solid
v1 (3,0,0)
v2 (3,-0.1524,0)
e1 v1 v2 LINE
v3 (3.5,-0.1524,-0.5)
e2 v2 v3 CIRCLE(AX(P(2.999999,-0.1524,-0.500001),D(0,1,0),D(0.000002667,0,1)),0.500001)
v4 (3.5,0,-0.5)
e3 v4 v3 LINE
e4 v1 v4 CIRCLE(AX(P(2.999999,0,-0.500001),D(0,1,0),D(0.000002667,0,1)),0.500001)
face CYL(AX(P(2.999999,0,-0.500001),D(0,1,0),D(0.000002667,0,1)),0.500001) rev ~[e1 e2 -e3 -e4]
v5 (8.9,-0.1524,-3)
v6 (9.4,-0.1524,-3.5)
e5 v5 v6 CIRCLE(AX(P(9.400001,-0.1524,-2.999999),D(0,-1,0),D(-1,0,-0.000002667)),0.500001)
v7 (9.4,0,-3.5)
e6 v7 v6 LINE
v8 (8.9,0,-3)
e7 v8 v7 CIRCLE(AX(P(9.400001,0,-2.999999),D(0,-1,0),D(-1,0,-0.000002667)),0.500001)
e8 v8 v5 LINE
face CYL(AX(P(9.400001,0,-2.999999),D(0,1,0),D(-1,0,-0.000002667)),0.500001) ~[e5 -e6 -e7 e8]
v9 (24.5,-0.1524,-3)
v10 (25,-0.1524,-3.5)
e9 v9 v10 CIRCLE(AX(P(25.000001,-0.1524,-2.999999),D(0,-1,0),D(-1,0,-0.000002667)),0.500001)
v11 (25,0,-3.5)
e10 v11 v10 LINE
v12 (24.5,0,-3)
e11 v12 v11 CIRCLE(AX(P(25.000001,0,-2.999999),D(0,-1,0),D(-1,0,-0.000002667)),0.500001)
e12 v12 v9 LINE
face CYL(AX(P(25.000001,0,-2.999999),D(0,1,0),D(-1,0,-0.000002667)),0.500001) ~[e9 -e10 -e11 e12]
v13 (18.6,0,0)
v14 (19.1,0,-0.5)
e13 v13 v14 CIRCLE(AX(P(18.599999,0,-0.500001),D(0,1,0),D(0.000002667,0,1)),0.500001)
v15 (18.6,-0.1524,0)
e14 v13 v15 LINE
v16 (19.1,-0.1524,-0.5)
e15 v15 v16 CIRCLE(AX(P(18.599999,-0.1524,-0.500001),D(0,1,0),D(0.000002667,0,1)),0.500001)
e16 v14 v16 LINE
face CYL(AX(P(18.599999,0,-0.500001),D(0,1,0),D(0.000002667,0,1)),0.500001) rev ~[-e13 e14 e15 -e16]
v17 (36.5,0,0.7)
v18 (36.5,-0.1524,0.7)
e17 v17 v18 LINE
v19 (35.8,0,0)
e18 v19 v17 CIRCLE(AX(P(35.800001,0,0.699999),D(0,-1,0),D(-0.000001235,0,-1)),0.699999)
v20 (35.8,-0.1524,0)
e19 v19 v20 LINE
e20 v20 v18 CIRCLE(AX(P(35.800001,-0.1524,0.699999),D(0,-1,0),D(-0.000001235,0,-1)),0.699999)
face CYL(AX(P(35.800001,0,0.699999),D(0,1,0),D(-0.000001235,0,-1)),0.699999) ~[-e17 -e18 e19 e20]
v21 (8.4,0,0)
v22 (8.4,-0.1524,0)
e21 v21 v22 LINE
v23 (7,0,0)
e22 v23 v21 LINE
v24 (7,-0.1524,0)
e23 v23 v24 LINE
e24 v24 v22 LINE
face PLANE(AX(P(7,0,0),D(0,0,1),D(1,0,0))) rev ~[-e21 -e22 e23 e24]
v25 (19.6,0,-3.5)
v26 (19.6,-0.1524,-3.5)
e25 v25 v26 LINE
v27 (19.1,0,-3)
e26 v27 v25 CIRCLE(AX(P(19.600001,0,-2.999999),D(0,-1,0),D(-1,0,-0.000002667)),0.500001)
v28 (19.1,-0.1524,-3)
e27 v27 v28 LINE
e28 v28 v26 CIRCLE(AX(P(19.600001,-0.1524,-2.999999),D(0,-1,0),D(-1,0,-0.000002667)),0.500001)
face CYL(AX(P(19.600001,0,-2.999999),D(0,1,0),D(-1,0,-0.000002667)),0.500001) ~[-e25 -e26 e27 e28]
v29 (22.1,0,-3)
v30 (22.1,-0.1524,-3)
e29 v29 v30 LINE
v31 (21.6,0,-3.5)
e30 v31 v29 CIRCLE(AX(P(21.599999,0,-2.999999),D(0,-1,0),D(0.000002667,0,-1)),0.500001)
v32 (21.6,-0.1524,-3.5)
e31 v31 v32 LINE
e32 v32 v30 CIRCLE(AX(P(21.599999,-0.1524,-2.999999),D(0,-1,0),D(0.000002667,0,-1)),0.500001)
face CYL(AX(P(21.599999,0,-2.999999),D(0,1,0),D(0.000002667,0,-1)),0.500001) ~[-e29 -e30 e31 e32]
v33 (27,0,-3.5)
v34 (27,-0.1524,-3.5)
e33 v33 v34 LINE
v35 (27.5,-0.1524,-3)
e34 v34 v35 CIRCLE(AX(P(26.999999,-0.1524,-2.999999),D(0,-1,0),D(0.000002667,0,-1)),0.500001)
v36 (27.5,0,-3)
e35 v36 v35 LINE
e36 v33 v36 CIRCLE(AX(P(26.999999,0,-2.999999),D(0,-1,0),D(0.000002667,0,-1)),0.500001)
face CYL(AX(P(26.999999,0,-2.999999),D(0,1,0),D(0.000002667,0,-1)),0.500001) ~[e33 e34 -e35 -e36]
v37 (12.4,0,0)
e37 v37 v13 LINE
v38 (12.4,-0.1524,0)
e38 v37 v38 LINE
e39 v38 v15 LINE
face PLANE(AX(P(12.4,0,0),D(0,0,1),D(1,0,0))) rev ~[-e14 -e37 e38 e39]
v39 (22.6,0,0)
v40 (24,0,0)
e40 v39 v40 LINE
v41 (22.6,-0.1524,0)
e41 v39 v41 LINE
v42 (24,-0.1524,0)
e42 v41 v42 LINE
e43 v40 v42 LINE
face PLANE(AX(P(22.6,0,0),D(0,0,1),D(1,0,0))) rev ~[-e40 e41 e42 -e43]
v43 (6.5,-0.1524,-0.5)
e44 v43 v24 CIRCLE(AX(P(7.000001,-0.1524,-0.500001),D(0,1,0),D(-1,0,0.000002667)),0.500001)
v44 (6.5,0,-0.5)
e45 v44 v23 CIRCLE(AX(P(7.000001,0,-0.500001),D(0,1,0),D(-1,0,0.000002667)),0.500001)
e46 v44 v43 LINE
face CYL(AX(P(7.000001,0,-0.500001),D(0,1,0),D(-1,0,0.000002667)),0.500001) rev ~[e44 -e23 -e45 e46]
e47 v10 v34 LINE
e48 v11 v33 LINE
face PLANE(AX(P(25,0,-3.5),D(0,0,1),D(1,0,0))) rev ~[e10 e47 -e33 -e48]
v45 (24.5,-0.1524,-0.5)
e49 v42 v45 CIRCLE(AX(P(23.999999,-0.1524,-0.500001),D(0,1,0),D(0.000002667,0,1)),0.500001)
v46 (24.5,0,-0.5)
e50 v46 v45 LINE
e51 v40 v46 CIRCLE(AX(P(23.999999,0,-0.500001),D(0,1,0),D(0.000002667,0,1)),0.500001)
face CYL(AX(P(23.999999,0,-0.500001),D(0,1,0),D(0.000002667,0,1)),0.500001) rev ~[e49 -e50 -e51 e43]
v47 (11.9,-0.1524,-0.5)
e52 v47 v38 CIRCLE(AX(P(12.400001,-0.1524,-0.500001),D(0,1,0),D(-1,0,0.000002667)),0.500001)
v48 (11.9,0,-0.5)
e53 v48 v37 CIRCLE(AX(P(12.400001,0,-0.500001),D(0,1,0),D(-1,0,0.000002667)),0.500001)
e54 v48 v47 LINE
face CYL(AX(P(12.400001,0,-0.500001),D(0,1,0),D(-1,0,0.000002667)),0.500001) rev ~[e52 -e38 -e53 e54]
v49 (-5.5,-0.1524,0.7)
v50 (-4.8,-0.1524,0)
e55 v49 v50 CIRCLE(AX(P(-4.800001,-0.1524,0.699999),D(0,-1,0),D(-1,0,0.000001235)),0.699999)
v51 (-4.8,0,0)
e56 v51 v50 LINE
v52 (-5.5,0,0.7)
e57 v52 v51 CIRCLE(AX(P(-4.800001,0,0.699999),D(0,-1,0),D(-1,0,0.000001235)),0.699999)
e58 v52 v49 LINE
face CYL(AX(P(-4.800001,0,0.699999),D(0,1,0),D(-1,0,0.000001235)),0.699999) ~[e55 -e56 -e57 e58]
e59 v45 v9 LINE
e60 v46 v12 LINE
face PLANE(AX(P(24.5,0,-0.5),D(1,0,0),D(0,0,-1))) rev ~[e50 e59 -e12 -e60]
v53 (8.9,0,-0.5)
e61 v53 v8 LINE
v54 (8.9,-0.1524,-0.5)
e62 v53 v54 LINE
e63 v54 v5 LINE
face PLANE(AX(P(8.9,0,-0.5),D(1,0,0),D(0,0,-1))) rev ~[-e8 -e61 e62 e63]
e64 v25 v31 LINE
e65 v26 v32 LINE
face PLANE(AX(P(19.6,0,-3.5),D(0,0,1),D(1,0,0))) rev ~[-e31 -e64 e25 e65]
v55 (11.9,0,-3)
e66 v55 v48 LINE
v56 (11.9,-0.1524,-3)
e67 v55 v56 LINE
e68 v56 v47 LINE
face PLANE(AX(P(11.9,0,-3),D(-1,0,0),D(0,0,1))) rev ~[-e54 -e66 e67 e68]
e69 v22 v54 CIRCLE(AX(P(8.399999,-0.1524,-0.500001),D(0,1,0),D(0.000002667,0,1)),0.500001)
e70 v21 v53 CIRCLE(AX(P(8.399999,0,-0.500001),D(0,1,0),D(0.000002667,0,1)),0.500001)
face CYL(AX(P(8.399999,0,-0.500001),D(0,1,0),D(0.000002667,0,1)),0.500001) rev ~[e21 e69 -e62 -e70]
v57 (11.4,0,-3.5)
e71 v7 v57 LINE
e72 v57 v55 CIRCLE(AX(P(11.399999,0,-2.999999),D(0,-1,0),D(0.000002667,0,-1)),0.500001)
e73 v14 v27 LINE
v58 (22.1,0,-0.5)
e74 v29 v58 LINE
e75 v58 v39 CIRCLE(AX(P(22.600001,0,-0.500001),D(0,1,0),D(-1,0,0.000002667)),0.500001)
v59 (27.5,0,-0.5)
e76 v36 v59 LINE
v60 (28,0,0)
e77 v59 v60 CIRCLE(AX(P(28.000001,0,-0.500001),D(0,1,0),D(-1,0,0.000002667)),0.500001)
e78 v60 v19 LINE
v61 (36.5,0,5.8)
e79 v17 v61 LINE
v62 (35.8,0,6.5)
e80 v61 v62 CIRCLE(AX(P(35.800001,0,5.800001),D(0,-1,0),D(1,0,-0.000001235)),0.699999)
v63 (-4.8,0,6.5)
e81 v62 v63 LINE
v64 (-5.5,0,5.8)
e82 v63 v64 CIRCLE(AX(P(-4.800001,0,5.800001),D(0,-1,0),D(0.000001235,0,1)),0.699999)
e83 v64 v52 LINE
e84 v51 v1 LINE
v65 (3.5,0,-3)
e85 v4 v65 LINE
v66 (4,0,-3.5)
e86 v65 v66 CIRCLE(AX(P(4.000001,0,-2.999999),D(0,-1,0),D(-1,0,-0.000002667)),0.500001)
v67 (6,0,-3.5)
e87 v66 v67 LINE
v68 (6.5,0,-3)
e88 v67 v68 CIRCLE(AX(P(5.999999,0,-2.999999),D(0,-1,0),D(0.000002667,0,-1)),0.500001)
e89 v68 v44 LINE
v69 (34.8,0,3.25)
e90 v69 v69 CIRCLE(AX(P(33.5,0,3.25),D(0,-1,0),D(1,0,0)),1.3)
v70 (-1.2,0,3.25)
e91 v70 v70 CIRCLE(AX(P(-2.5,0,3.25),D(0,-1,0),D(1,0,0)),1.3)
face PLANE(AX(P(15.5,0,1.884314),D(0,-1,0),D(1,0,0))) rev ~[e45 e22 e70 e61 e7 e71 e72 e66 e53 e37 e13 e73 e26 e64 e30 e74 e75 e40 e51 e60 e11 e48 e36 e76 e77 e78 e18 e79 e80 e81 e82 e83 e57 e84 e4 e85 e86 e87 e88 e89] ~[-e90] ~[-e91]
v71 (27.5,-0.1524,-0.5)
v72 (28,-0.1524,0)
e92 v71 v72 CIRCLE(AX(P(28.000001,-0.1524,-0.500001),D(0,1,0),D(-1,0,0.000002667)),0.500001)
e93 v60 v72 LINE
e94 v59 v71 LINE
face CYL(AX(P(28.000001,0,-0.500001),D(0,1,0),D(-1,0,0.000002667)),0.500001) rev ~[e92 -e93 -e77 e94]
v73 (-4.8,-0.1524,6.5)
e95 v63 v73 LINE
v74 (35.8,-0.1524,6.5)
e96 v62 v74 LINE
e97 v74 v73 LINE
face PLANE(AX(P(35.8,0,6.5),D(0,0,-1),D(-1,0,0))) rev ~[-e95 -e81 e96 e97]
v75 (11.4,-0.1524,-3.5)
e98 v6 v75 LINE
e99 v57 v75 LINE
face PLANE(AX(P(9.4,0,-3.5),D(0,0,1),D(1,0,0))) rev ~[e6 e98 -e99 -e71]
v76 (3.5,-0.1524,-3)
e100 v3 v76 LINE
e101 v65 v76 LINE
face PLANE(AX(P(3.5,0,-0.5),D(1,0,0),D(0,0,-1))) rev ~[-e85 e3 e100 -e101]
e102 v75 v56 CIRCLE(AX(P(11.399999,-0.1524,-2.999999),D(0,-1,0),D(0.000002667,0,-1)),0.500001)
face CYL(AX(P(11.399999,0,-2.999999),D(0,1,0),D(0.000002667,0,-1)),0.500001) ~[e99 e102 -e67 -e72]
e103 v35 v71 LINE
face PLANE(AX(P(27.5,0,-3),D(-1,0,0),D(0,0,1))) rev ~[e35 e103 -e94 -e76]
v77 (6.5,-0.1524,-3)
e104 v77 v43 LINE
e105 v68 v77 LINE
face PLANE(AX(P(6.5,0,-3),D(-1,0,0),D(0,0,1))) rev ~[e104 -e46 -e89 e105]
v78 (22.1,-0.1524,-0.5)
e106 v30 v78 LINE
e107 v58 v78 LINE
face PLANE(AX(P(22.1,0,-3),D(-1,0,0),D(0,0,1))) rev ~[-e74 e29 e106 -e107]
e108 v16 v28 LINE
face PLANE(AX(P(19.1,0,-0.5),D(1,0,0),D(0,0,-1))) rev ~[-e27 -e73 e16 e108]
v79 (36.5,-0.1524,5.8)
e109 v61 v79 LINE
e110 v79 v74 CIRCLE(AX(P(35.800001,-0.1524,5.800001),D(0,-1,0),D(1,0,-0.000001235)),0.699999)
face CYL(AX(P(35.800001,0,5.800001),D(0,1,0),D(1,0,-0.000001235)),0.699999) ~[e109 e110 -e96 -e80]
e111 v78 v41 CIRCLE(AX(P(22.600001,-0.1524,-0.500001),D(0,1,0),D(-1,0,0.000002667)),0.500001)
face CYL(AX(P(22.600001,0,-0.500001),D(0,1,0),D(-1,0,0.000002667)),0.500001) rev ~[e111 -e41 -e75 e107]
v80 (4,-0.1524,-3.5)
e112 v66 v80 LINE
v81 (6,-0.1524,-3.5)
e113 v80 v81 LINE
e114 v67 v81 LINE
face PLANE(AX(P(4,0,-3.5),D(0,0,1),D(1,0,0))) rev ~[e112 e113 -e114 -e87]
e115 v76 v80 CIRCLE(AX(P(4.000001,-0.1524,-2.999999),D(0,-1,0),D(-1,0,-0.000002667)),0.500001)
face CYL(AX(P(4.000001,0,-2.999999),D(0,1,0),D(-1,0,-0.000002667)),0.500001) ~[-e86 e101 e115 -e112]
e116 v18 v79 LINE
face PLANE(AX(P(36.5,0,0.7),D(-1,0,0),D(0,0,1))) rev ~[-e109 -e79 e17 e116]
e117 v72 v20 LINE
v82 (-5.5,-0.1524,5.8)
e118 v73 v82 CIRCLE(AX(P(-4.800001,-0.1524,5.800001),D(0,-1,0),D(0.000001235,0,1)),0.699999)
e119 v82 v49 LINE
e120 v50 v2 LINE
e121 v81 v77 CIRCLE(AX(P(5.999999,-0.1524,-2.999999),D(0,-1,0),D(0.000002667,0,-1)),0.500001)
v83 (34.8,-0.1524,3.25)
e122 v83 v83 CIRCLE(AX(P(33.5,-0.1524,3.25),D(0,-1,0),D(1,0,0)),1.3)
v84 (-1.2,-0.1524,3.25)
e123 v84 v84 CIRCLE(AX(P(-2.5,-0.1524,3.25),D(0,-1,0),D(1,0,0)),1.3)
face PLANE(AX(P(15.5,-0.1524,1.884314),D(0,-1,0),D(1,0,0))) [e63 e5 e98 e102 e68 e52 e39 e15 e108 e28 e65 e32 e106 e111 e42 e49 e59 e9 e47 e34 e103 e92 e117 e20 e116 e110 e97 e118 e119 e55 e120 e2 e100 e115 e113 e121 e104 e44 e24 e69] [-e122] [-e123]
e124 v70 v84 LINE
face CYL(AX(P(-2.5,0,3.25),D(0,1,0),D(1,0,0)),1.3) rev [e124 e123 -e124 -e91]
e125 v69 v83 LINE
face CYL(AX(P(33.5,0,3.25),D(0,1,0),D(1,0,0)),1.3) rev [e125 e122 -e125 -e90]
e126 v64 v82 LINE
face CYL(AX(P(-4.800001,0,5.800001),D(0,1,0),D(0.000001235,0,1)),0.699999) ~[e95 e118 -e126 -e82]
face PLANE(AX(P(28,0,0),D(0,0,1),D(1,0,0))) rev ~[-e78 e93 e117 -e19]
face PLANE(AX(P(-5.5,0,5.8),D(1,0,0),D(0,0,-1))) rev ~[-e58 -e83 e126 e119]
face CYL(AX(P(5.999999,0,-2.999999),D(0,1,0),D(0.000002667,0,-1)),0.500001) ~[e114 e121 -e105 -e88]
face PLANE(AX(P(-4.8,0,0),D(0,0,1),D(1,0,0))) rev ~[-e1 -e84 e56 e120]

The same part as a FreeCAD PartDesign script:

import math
import FreeCAD as App
import Part
import Sketcher
from FreeCAD import Vector

doc = App.newDocument("Part")
body = doc.addObject("PartDesign::Body", "Body")

# Sketch on XZ plane
sketch1 = body.newObject("Sketcher::SketchObject", "Sketch")
sketch1.AttachmentSupport = (doc.getObject("XZ_Plane"), [""])
sketch1.MapMode = "FlatFace"
sketch1.addGeometry([
    Part.LineSegment(Vector(-4.8, 0, 0), Vector(3, 0, 0)),  # 0
    Part.ArcOfCircle(Part.Circle(Vector(3, -0.5, 0), Vector(0, 0, 1), 0.5), math.radians(0), math.radians(90)),  # 1
    Part.LineSegment(Vector(3.5, -0.5, 0), Vector(3.5, -3, 0)),  # 2
    Part.ArcOfCircle(Part.Circle(Vector(4, -3, 0), Vector(0, 0, 1), 0.5), math.radians(-180), math.radians(-90)),  # 3
    Part.LineSegment(Vector(4, -3.5, 0), Vector(6, -3.5, 0)),  # 4
    Part.ArcOfCircle(Part.Circle(Vector(6, -3, 0), Vector(0, 0, 1), 0.5), math.radians(-90), math.radians(0)),  # 5
    Part.LineSegment(Vector(6.5, -3, 0), Vector(6.5, -0.5, 0)),  # 6
    Part.ArcOfCircle(Part.Circle(Vector(7, -0.5, 0), Vector(0, 0, 1), 0.5), math.radians(90), math.radians(180)),  # 7
    Part.LineSegment(Vector(7, 0, 0), Vector(8.4, 0, 0)),  # 8
    Part.ArcOfCircle(Part.Circle(Vector(8.4, -0.5, 0), Vector(0, 0, 1), 0.5), math.radians(0), math.radians(90)),  # 9
    Part.LineSegment(Vector(8.9, -0.5, 0), Vector(8.9, -3, 0)),  # 10
    Part.ArcOfCircle(Part.Circle(Vector(9.4, -3, 0), Vector(0, 0, 1), 0.5), math.radians(-180), math.radians(-90)),  # 11
    Part.LineSegment(Vector(9.4, -3.5, 0), Vector(11.4, -3.5, 0)),  # 12
    Part.ArcOfCircle(Part.Circle(Vector(11.4, -3, 0), Vector(0, 0, 1), 0.5), math.radians(-90), math.radians(0)),  # 13
    Part.LineSegment(Vector(11.9, -3, 0), Vector(11.9, -0.5, 0)),  # 14
    Part.ArcOfCircle(Part.Circle(Vector(12.4, -0.5, 0), Vector(0, 0, 1), 0.5), math.radians(90), math.radians(180)),  # 15
    Part.LineSegment(Vector(12.4, 0, 0), Vector(18.6, 0, 0)),  # 16
    Part.ArcOfCircle(Part.Circle(Vector(18.6, -0.5, 0), Vector(0, 0, 1), 0.5), math.radians(0), math.radians(90)),  # 17
    Part.LineSegment(Vector(19.1, -0.5, 0), Vector(19.1, -3, 0)),  # 18
    Part.ArcOfCircle(Part.Circle(Vector(19.6, -3, 0), Vector(0, 0, 1), 0.5), math.radians(-180), math.radians(-90)),  # 19
    Part.LineSegment(Vector(19.6, -3.5, 0), Vector(21.6, -3.5, 0)),  # 20
    Part.ArcOfCircle(Part.Circle(Vector(21.6, -3, 0), Vector(0, 0, 1), 0.5), math.radians(-90), math.radians(0)),  # 21
    Part.LineSegment(Vector(22.1, -3, 0), Vector(22.1, -0.5, 0)),  # 22
    Part.ArcOfCircle(Part.Circle(Vector(22.6, -0.5, 0), Vector(0, 0, 1), 0.5), math.radians(90), math.radians(180)),  # 23
    Part.LineSegment(Vector(22.6, 0, 0), Vector(24, 0, 0)),  # 24
    Part.ArcOfCircle(Part.Circle(Vector(24, -0.5, 0), Vector(0, 0, 1), 0.5), math.radians(0), math.radians(90)),  # 25
    Part.LineSegment(Vector(24.5, -0.5, 0), Vector(24.5, -3, 0)),  # 26
    Part.ArcOfCircle(Part.Circle(Vector(25, -3, 0), Vector(0, 0, 1), 0.5), math.radians(-180), math.radians(-90)),  # 27
    Part.LineSegment(Vector(25, -3.5, 0), Vector(27, -3.5, 0)),  # 28
    Part.ArcOfCircle(Part.Circle(Vector(27, -3, 0), Vector(0, 0, 1), 0.5), math.radians(-90), math.radians(0)),  # 29
    Part.LineSegment(Vector(27.5, -3, 0), Vector(27.5, -0.5, 0)),  # 30
    Part.ArcOfCircle(Part.Circle(Vector(28, -0.5, 0), Vector(0, 0, 1), 0.5), math.radians(90), math.radians(180)),  # 31
    Part.LineSegment(Vector(28, 0, 0), Vector(35.8, 0, 0)),  # 32
    Part.ArcOfCircle(Part.Circle(Vector(35.8, 0.7, 0), Vector(0, 0, 1), 0.7), math.radians(-90), math.radians(0)),  # 33
    Part.LineSegment(Vector(36.5, 0.7, 0), Vector(36.5, 5.8, 0)),  # 34
    Part.ArcOfCircle(Part.Circle(Vector(35.8, 5.8, 0), Vector(0, 0, 1), 0.7), math.radians(0), math.radians(90)),  # 35
    Part.LineSegment(Vector(35.8, 6.5, 0), Vector(-4.8, 6.5, 0)),  # 36
    Part.ArcOfCircle(Part.Circle(Vector(-4.8, 5.8, 0), Vector(0, 0, 1), 0.7), math.radians(90), math.radians(180)),  # 37
    Part.LineSegment(Vector(-5.5, 5.8, 0), Vector(-5.5, 0.7, 0)),  # 38
    Part.ArcOfCircle(Part.Circle(Vector(-4.8, 0.7, 0), Vector(0, 0, 1), 0.7), math.radians(180), math.radians(270)),  # 39
    Part.Circle(Vector(-2.5, 3.2, 0), Vector(0, 0, 1), 1.3),  # 40
    Part.Circle(Vector(33.5, 3.2, 0), Vector(0, 0, 1), 1.3),  # 41
], False)
sketch1.addConstraint([
    Sketcher.Constraint("Coincident", 0, 2, 1, 2),
    Sketcher.Constraint("Coincident", 1, 1, 2, 1),
    Sketcher.Constraint("Coincident", 2, 2, 3, 1),
    Sketcher.Constraint("Coincident", 3, 2, 4, 1),
    Sketcher.Constraint("Coincident", 4, 2, 5, 1),
    Sketcher.Constraint("Coincident", 5, 2, 6, 1),
    Sketcher.Constraint("Coincident", 6, 2, 7, 2),
    Sketcher.Constraint("Coincident", 7, 1, 8, 1),
    Sketcher.Constraint("Coincident", 8, 2, 9, 2),
    Sketcher.Constraint("Coincident", 9, 1, 10, 1),
    Sketcher.Constraint("Coincident", 10, 2, 11, 1),
    Sketcher.Constraint("Coincident", 11, 2, 12, 1),
    Sketcher.Constraint("Coincident", 12, 2, 13, 1),
    Sketcher.Constraint("Coincident", 13, 2, 14, 1),
    Sketcher.Constraint("Coincident", 14, 2, 15, 2),
    Sketcher.Constraint("Coincident", 15, 1, 16, 1),
    Sketcher.Constraint("Coincident", 16, 2, 17, 2),
    Sketcher.Constraint("Coincident", 17, 1, 18, 1),
    Sketcher.Constraint("Coincident", 18, 2, 19, 1),
    Sketcher.Constraint("Coincident", 19, 2, 20, 1),
    Sketcher.Constraint("Coincident", 20, 2, 21, 1),
    Sketcher.Constraint("Coincident", 21, 2, 22, 1),
    Sketcher.Constraint("Coincident", 22, 2, 23, 2),
    Sketcher.Constraint("Coincident", 23, 1, 24, 1),
    Sketcher.Constraint("Coincident", 24, 2, 25, 2),
    Sketcher.Constraint("Coincident", 25, 1, 26, 1),
    Sketcher.Constraint("Coincident", 26, 2, 27, 1),
    Sketcher.Constraint("Coincident", 27, 2, 28, 1),
    Sketcher.Constraint("Coincident", 28, 2, 29, 1),
    Sketcher.Constraint("Coincident", 29, 2, 30, 1),
    Sketcher.Constraint("Coincident", 30, 2, 31, 2),
    Sketcher.Constraint("Coincident", 31, 1, 32, 1),
    Sketcher.Constraint("Tangent", 32, 2, 33, 1),
    Sketcher.Constraint("Tangent", 33, 2, 34, 1),
    Sketcher.Constraint("Tangent", 34, 2, 35, 1),
    Sketcher.Constraint("Tangent", 35, 2, 36, 1),
    Sketcher.Constraint("Tangent", 36, 2, 37, 1),
    Sketcher.Constraint("Tangent", 37, 2, 38, 1),
    Sketcher.Constraint("Tangent", 38, 2, 39, 1),
    Sketcher.Constraint("Tangent", 39, 2, 0, 1),
    Sketcher.Constraint("Horizontal", 0),
    Sketcher.Constraint("Vertical", 2),
    Sketcher.Constraint("Horizontal", 4),
    Sketcher.Constraint("Vertical", 6),
    Sketcher.Constraint("Horizontal", 8),
    Sketcher.Constraint("Vertical", 10),
    Sketcher.Constraint("Horizontal", 12),
    Sketcher.Constraint("Vertical", 14),
    Sketcher.Constraint("Horizontal", 16),
    Sketcher.Constraint("Vertical", 18),
    Sketcher.Constraint("Horizontal", 20),
    Sketcher.Constraint("Vertical", 22),
    Sketcher.Constraint("Horizontal", 24),
    Sketcher.Constraint("Vertical", 26),
    Sketcher.Constraint("Horizontal", 28),
    Sketcher.Constraint("Vertical", 30),
    Sketcher.Constraint("Horizontal", 32),
    Sketcher.Constraint("Vertical", 34),
    Sketcher.Constraint("Horizontal", 36),
    Sketcher.Constraint("Vertical", 38),
    Sketcher.Constraint("Equal", 1, 3),
    Sketcher.Constraint("Equal", 3, 5),
    Sketcher.Constraint("Equal", 5, 7),
    Sketcher.Constraint("Equal", 7, 9),
    Sketcher.Constraint("Equal", 9, 11),
    Sketcher.Constraint("Equal", 11, 13),
    Sketcher.Constraint("Equal", 13, 15),
    Sketcher.Constraint("Equal", 15, 17),
    Sketcher.Constraint("Equal", 17, 19),
    Sketcher.Constraint("Equal", 19, 21),
    Sketcher.Constraint("Equal", 21, 23),
    Sketcher.Constraint("Equal", 23, 25),
    Sketcher.Constraint("Equal", 25, 27),
    Sketcher.Constraint("Equal", 27, 29),
    Sketcher.Constraint("Equal", 29, 31),
    Sketcher.Constraint("Equal", 33, 35),
    Sketcher.Constraint("Equal", 35, 37),
    Sketcher.Constraint("Equal", 37, 39),
    Sketcher.Constraint("Equal", 40, 41),
    Sketcher.Constraint("PointOnObject", 0, 2, -1),
    Sketcher.Constraint("PointOnObject", 7, 1, -1),
    Sketcher.Constraint("PointOnObject", 15, 1, -1),
    Sketcher.Constraint("PointOnObject", 23, 1, -1),
    Sketcher.Constraint("PointOnObject", 31, 1, -1),
    Sketcher.Constraint("Horizontal", 5, 3, 11, 3),
    Sketcher.Constraint("Horizontal", 13, 3, 19, 3),
    Sketcher.Constraint("Horizontal", 21, 3, 27, 3),
    Sketcher.Constraint("Horizontal", 40, 3, 41, 3),
    Sketcher.Constraint("Horizontal", 31, 3, 1, 1),
    Sketcher.Constraint("Horizontal", 29, 3, 2, 2),
    Sketcher.Constraint("Horizontal", 2, 2, 5, 2),
    Sketcher.Constraint("Horizontal", 1, 1, 6, 2),
    Sketcher.Constraint("Horizontal", 6, 2, 9, 1),
    Sketcher.Constraint("Horizontal", 5, 2, 10, 2),
    Sketcher.Constraint("Horizontal", 10, 2, 13, 2),
    Sketcher.Constraint("Horizontal", 9, 1, 14, 2),
    Sketcher.Constraint("Horizontal", 14, 2, 17, 1),
    Sketcher.Constraint("Horizontal", 13, 2, 18, 2),
    Sketcher.Constraint("Horizontal", 18, 2, 21, 2),
    Sketcher.Constraint("Horizontal", 17, 1, 22, 2),
    Sketcher.Constraint("Horizontal", 22, 2, 25, 1),
    Sketcher.Constraint("Horizontal", 21, 2, 26, 2),
    Sketcher.Constraint("Horizontal", 26, 2, 29, 2),
    Sketcher.Constraint("Horizontal", 25, 1, 30, 2),
    Sketcher.Constraint("Vertical", 1, 3, 0, 2),
    Sketcher.Constraint("Vertical", 5, 3, 4, 2),
    Sketcher.Constraint("Vertical", 9, 3, 8, 2),
    Sketcher.Constraint("Vertical", 13, 3, 12, 2),
    Sketcher.Constraint("Vertical", 17, 3, 16, 2),
    Sketcher.Constraint("Vertical", 21, 3, 20, 2),
    Sketcher.Constraint("Vertical", 25, 3, 24, 2),
    Sketcher.Constraint("Vertical", 29, 3, 28, 2),
    Sketcher.Constraint("Equal", 4, 12),
    Sketcher.Constraint("Equal", 12, 20),
    Sketcher.Constraint("Equal", 8, 24),
    Sketcher.Constraint("Equal", 20, 28),
    Sketcher.Constraint("Equal", 0, 32),
    Sketcher.Constraint("Diameter", 40, 2.6),
    Sketcher.Constraint("Radius", 1, 0.500001),
    Sketcher.Constraint("Radius", 33, 0.699999),
    Sketcher.Constraint("DistanceX", 4, 1, 4, 2, 2.0),
    Sketcher.Constraint("DistanceX", 0, 1, 0, 2, 7.8),
    Sketcher.Constraint("DistanceX", 8, 1, 8, 2, 1.4),
    Sketcher.Constraint("DistanceX", 16, 1, 16, 2, 6.2),
    Sketcher.Constraint("DistanceX", 36, 2, 36, 1, 40.6),
    Sketcher.Constraint("DistanceY", 2, 2, 2, 1, 2.5),
    Sketcher.Constraint("DistanceY", 34, 1, 34, 2, 5.1),
    Sketcher.Constraint("DistanceX", -1, 1, 1, 3, 2.999999),
    Sketcher.Constraint("DistanceX", -1, 1, 5, 3, 5.999999),
    Sketcher.Constraint("DistanceX", -1, 1, 25, 3, 23.999999),
    Sketcher.Constraint("DistanceX", -1, 1, 29, 3, 26.999999),
    Sketcher.Constraint("DistanceX", -1, 1, 7, 1, 7.0),
    Sketcher.Constraint("DistanceX", -1, 1, 13, 3, 11.399999),
    Sketcher.Constraint("DistanceX", -1, 1, 17, 3, 18.599999),
    Sketcher.Constraint("DistanceX", -1, 1, 21, 3, 21.599999),
    Sketcher.Constraint("DistanceX", 40, 3, -1, 1, 2.5),
    Sketcher.Constraint("DistanceX", -1, 1, 41, 3, 33.5),
    Sketcher.Constraint("DistanceY", -1, 1, 40, 3, 3.25),
])
pad1 = body.newObject("PartDesign::Pad", "Pad")
pad1.Profile = sketch1
pad1.Length = 0.1524

doc.recompute()
